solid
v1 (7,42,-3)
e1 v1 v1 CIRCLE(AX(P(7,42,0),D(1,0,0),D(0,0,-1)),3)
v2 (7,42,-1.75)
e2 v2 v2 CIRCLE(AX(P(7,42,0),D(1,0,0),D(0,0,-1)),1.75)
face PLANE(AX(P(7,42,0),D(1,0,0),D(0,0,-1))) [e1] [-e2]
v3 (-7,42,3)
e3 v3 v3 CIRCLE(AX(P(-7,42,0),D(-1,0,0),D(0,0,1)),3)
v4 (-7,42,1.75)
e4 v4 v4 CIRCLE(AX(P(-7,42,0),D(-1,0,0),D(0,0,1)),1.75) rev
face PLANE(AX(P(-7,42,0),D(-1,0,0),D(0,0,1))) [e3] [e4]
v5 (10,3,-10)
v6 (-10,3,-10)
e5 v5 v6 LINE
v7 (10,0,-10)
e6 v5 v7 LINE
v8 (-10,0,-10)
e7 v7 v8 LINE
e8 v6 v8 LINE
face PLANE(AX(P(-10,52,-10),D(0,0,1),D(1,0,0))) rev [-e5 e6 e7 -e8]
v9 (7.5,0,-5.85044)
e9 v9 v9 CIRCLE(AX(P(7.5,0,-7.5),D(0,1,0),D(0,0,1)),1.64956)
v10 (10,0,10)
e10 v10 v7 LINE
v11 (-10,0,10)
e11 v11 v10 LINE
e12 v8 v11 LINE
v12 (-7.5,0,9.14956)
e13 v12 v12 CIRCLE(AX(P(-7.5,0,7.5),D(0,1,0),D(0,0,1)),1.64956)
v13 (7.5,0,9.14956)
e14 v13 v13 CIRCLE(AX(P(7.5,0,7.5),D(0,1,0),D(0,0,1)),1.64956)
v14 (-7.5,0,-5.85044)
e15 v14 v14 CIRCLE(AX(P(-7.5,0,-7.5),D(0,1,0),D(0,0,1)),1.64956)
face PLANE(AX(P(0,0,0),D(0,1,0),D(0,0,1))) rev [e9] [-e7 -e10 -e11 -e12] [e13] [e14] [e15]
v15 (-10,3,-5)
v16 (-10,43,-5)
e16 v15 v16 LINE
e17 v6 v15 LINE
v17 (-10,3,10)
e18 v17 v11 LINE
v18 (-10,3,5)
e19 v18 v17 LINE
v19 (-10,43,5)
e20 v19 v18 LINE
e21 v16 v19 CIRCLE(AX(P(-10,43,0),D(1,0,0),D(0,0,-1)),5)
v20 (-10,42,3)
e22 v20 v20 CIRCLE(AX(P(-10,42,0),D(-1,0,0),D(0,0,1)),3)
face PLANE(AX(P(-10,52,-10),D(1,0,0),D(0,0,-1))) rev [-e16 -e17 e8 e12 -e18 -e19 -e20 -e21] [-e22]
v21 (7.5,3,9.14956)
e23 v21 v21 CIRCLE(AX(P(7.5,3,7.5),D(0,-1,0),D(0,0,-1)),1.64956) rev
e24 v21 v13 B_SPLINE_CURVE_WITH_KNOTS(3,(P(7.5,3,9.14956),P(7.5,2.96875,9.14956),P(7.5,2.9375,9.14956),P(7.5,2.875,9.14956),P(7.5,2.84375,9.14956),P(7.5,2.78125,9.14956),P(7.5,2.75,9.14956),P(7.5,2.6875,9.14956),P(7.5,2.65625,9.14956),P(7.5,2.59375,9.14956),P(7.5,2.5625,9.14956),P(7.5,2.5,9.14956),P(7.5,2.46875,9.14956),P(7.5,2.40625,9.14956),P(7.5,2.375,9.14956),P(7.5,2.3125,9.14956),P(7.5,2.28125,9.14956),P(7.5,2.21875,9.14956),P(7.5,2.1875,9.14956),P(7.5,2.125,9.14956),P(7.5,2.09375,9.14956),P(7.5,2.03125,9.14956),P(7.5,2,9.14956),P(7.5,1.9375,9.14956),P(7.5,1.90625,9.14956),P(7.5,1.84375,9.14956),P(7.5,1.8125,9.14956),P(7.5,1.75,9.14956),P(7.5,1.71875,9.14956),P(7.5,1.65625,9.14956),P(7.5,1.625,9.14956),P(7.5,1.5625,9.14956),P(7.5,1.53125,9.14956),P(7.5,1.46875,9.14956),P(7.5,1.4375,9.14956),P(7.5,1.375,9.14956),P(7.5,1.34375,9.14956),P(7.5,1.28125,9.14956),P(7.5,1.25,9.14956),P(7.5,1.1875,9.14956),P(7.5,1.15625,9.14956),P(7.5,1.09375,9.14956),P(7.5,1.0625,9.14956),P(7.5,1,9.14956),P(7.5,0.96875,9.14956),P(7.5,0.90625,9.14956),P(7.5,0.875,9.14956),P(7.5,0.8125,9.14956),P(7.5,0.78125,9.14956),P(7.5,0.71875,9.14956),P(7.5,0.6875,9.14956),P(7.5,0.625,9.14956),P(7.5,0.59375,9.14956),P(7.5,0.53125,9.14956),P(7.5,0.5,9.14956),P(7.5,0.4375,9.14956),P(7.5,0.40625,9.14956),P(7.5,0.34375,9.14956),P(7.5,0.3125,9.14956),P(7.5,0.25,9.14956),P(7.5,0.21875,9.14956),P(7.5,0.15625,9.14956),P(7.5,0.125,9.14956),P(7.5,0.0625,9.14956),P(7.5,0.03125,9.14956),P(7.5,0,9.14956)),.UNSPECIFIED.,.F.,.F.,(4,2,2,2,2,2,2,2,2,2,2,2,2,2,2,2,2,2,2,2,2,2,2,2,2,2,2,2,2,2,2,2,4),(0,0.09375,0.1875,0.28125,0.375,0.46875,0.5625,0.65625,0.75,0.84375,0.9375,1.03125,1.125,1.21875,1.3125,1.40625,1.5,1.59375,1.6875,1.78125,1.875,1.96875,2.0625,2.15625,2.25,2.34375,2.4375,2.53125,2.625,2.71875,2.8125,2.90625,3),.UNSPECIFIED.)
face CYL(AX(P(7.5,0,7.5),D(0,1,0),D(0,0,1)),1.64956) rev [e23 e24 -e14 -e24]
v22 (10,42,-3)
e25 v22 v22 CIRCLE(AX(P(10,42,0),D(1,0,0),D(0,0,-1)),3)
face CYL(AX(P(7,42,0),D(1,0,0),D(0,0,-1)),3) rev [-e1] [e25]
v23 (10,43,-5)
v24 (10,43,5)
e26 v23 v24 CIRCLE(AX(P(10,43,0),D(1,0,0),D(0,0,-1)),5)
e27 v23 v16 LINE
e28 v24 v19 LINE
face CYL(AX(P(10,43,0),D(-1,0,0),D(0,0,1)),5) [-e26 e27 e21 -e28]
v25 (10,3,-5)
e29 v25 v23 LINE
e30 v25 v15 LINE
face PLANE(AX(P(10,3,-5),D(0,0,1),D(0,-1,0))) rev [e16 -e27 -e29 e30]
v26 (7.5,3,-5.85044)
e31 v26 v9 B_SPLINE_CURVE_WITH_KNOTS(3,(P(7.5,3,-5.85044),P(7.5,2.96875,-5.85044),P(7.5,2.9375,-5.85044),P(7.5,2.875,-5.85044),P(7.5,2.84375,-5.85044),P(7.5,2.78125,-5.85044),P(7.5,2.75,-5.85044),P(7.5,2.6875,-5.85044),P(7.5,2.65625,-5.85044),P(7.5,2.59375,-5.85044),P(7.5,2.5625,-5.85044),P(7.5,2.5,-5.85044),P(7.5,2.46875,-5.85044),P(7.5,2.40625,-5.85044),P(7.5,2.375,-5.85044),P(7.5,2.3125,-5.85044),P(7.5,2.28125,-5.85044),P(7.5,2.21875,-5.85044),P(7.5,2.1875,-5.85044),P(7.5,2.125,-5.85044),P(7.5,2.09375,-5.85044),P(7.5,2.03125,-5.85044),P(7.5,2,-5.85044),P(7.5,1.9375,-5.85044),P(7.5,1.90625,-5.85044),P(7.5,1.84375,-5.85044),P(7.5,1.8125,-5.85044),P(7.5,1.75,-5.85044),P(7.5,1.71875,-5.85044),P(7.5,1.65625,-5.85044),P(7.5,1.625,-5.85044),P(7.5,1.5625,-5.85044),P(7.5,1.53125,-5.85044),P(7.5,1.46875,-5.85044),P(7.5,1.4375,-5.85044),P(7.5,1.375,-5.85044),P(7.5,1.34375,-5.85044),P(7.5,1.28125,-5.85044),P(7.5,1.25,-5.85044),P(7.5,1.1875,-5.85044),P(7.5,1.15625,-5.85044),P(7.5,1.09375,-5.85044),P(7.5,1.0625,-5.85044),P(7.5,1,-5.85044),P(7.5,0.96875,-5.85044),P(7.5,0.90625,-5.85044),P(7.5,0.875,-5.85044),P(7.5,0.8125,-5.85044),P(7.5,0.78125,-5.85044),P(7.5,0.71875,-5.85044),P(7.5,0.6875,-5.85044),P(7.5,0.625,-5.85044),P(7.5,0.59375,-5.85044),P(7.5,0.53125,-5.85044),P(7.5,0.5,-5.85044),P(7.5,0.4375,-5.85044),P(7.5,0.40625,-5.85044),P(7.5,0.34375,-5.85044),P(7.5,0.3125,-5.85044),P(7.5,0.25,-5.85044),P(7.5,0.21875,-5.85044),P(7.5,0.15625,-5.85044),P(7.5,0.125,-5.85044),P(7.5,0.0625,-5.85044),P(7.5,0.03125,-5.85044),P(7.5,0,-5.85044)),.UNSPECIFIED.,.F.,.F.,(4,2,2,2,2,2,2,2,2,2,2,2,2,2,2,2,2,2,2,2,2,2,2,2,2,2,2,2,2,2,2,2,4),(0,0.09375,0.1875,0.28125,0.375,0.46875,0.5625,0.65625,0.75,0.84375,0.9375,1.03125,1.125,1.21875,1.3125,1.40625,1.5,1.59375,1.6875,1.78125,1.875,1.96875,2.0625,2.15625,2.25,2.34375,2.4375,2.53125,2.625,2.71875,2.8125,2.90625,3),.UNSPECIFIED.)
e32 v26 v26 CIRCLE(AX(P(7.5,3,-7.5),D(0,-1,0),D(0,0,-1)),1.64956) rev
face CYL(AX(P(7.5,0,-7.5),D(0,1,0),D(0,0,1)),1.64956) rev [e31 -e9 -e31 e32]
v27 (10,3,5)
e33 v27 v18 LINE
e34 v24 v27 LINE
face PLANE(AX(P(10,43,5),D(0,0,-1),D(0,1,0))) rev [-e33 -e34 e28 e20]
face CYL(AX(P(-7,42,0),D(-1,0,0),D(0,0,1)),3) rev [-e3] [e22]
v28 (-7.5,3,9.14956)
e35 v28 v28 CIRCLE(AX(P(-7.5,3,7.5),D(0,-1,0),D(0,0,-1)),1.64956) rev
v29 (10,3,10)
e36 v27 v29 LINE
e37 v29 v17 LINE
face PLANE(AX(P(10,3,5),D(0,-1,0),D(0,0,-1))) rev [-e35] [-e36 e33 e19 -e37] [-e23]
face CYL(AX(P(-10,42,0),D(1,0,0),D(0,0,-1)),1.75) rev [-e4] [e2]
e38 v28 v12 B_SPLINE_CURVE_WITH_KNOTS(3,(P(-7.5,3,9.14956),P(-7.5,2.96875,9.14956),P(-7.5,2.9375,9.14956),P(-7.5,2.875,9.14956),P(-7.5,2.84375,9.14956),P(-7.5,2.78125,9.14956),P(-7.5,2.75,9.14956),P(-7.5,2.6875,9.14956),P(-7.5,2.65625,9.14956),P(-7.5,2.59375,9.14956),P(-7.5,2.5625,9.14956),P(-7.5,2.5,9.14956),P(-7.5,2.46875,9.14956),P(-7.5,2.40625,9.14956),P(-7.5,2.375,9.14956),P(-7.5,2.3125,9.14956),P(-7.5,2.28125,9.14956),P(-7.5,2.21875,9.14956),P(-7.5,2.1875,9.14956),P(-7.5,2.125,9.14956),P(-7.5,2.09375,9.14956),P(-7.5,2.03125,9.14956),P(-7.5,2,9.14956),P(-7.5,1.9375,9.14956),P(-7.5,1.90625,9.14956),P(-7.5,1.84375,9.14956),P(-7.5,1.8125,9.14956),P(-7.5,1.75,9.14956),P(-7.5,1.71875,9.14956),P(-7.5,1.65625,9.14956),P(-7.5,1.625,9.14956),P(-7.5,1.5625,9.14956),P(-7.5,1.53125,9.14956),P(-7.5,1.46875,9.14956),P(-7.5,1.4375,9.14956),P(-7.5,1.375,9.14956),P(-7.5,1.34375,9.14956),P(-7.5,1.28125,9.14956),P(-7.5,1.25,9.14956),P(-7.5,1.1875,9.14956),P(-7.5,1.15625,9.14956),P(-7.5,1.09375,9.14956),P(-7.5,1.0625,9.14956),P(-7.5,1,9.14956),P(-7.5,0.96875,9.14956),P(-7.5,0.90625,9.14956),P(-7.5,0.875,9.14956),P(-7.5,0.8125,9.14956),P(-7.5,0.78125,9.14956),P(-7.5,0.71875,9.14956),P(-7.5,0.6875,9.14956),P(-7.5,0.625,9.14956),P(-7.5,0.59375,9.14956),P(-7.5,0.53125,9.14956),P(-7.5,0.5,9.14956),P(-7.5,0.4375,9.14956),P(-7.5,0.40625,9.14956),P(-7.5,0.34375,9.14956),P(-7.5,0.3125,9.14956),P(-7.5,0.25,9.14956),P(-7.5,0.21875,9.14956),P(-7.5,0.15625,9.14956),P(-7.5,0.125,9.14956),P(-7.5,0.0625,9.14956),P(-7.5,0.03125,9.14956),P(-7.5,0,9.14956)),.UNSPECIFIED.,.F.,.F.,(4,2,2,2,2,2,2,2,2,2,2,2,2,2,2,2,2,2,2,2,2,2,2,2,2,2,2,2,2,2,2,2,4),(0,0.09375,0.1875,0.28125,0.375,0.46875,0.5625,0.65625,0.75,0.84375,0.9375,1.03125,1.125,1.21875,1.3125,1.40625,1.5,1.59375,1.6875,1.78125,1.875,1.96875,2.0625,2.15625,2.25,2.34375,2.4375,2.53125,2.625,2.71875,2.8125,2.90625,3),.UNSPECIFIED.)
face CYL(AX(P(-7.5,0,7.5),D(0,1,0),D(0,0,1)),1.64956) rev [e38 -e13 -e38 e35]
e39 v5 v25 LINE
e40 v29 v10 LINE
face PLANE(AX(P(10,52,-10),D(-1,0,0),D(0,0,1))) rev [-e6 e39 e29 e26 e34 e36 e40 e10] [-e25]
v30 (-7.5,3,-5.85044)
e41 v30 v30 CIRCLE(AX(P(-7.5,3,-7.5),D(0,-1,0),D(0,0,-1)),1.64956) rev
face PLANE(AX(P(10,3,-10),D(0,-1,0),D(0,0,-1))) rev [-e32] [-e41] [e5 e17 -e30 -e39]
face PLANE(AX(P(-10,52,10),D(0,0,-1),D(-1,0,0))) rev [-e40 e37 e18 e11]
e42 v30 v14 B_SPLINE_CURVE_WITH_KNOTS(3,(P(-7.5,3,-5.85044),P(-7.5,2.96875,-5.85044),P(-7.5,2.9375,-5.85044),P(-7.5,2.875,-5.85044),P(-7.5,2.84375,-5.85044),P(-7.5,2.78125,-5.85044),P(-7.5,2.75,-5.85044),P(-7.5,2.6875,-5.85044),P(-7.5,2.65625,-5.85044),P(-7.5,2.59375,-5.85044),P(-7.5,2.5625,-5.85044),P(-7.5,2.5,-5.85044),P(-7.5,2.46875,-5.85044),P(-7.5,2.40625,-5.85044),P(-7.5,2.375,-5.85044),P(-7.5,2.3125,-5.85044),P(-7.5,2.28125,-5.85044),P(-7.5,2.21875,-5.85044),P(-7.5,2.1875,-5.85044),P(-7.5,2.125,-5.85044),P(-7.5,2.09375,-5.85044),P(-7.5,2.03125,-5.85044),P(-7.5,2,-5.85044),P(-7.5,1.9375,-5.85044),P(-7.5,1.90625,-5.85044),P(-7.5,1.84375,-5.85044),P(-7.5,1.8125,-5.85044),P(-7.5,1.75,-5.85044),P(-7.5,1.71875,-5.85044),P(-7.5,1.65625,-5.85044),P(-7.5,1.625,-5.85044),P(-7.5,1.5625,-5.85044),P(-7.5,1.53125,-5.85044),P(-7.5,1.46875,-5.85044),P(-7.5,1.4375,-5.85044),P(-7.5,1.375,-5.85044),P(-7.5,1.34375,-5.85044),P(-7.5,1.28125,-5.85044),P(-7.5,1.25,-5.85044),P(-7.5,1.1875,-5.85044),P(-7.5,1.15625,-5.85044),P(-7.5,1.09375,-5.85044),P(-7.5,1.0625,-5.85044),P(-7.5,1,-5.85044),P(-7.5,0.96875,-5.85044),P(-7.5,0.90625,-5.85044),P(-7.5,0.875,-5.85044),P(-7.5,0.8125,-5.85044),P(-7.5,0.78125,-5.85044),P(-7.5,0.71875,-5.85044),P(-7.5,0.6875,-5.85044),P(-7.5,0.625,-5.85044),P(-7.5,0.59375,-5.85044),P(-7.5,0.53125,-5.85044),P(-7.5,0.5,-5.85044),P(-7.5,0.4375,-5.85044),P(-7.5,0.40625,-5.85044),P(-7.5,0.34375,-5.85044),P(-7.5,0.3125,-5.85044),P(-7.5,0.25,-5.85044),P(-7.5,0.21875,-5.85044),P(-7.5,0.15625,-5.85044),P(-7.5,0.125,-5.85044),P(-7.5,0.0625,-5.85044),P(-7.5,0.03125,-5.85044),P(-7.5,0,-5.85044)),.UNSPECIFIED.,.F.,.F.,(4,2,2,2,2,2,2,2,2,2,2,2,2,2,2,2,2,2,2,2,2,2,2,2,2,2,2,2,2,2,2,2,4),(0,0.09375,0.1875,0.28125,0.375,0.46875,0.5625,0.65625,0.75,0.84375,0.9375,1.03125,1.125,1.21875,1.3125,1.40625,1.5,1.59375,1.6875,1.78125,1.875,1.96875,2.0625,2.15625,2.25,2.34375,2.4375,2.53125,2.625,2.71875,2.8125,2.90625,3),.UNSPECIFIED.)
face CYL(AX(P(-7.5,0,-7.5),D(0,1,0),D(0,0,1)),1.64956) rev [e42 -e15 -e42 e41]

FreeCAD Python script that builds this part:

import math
import FreeCAD as App
import Part
import Sketcher
Q = App.Units.Quantity

doc = App.newDocument("Part")
body = doc.addObject("PartDesign::Body", "Body")

sketch1 = doc.addObject("Sketcher::SketchObject", "Sketch")
body.addObject(sketch1)
sketch1.AttachmentSupport = (doc.XZ_Plane, [""])
sketch1.MapMode = "FlatFace"
sketch1.addGeometry([
    Part.LineSegment(App.Vector(-10, -10, 0), App.Vector(-10, 10, 0)),
    Part.LineSegment(App.Vector(-10, 10, 0), App.Vector(10, 10, 0)),
    Part.LineSegment(App.Vector(10, 10, 0), App.Vector(10, -10, 0)),
    Part.LineSegment(App.Vector(10, -10, 0), App.Vector(-10, -10, 0)),
], False)
sketch1.addConstraint([
    Sketcher.Constraint("Coincident", 0, 2, 1, 1),
    Sketcher.Constraint("Coincident", 1, 2, 2, 1),
    Sketcher.Constraint("Coincident", 2, 2, 3, 1),
    Sketcher.Constraint("Coincident", 3, 2, 0, 1),
    Sketcher.Constraint("Vertical", 0),
    Sketcher.Constraint("Horizontal", 1),
    Sketcher.Constraint("Vertical", 2),
    Sketcher.Constraint("Horizontal", 3),
    Sketcher.Constraint("Symmetric", 0, 2, 2, 2, -1, 1),
    Sketcher.Constraint("Equal", 3, 0),
    Sketcher.Constraint("DistanceX", 1, 1, 1, 2, Q("20 mm")),
])
pad1 = doc.addObject("PartDesign::Pad", "Pad")
body.addObject(pad1)
pad1.Profile = sketch1
pad1.Length = 52
pad1.Reversed = True

sketch2 = doc.addObject("Sketcher::SketchObject", "Sketch001")
body.addObject(sketch2)
sketch2.AttachmentSupport = (doc.YZ_Plane, [""])
sketch2.MapMode = "FlatFace"
sketch2.AttachmentOffset = App.Placement(App.Vector(0, 0, 10), App.Rotation())
sketch2.addGeometry(Part.Circle(App.Vector(42, 0, 0), App.Vector(0, 0, 1), 3), False)
sketch2.addConstraint([
    Sketcher.Constraint("PointOnObject", 0, 3, -1),
    Sketcher.Constraint("Diameter", 0, Q("6 mm")),
    Sketcher.Constraint("DistanceX", -1, 1, 0, 3, Q("42 mm")),
])
pocket1 = doc.addObject("PartDesign::Pocket", "Pocket")
body.addObject(pocket1)
pocket1.Profile = sketch2
pocket1.Length = 3

sketch3 = doc.addObject("Sketcher::SketchObject", "Sketch002")
body.addObject(sketch3)
sketch3.AttachmentSupport = (doc.YZ_Plane, [""])
sketch3.MapMode = "FlatFace"
sketch3.AttachmentOffset = App.Placement(App.Vector(0, 0, 7), App.Rotation())
sketch3.addGeometry(Part.Circle(App.Vector(42, 0, 0), App.Vector(0, 0, 1), 1.75), False)
sketch3.addConstraint([
    Sketcher.Constraint("PointOnObject", 0, 3, -1),
    Sketcher.Constraint("Diameter", 0, Q("3.5 mm")),
    Sketcher.Constraint("DistanceX", -1, 1, 0, 3, Q("42 mm")),
])
pocket2 = doc.addObject("PartDesign::Pocket", "Pocket001")
body.addObject(pocket2)
pocket2.Profile = sketch3
pocket2.Type = "ThroughAll"

sketch4 = doc.addObject("Sketcher::SketchObject", "Sketch003")
body.addObject(sketch4)
sketch4.AttachmentSupport = (doc.YZ_Plane, [""])
sketch4.MapMode = "FlatFace"
sketch4.AttachmentOffset = App.Placement(App.Vector(0, 0, -7), App.Rotation())
sketch4.addGeometry(Part.Circle(App.Vector(42, 0, 0), App.Vector(0, 0, 1), 3), False)
sketch4.addConstraint([
    Sketcher.Constraint("PointOnObject", 0, 3, -1),
    Sketcher.Constraint("Diameter", 0, Q("6 mm")),
    Sketcher.Constraint("DistanceX", -1, 1, 0, 3, Q("42 mm")),
])
pocket3 = doc.addObject("PartDesign::Pocket", "Pocket002")
body.addObject(pocket3)
pocket3.Profile = sketch4
pocket3.Length = 3

sketch5 = doc.addObject("Sketcher::SketchObject", "Sketch004")
body.addObject(sketch5)
sketch5.AttachmentSupport = (doc.XZ_Plane, [""])
sketch5.MapMode = "FlatFace"
sketch5.AttachmentOffset = App.Placement(App.Vector(0, 0, -52), App.Rotation())
sketch5.addGeometry([
    Part.Circle(App.Vector(-7.5, -7.5, 0), App.Vector(0, 0, 1), 1.64956),
    Part.Circle(App.Vector(7.5, -7.5, 0), App.Vector(0, 0, 1), 1.64956),
    Part.Circle(App.Vector(7.5, 7.5, 0), App.Vector(0, 0, 1), 1.64956),
    Part.Circle(App.Vector(-7.5, 7.5, 0), App.Vector(0, 0, 1), 1.64956),
], False)
sketch5.addConstraint([
    Sketcher.Constraint("Equal", 0, 1),
    Sketcher.Constraint("Equal", 1, 2),
    Sketcher.Constraint("Equal", 2, 3),
    Sketcher.Constraint("Symmetric", 0, 3, 2, 3, -1, 1),
    Sketcher.Constraint("Symmetric", 1, 3, 3, 3, -1, 1),
    Sketcher.Constraint("Symmetric", 0, 3, 1, 3, -2),
    Sketcher.Constraint("DistanceX", 0, 3, 1, 3, Q("15 mm")),
    Sketcher.Constraint("DistanceY", 1, 3, 2, 3, Q("15 mm")),
    Sketcher.Constraint("Diameter", 0, Q("3.299119 mm")),
])
pocket4 = doc.addObject("PartDesign::Pocket", "Pocket003")
body.addObject(pocket4)
pocket4.Profile = sketch5
pocket4.Type = "ThroughAll"
pocket4.Reversed = True

sketch6 = doc.addObject("Sketcher::SketchObject", "Sketch005")
body.addObject(sketch6)
sketch6.AttachmentSupport = (doc.YZ_Plane, [""])
sketch6.MapMode = "FlatFace"
sketch6.AttachmentOffset = App.Placement(App.Vector(0, 0, -10), App.Rotation())
sketch6.addGeometry([
    Part.LineSegment(App.Vector(3, -10, 0), App.Vector(3, -5, 0)),
    Part.LineSegment(App.Vector(3, -5, 0), App.Vector(43, -5, 0)),
    Part.ArcOfCircle(Part.Circle(App.Vector(43, 0, 0), App.Vector(0, 0, 1), 5), math.radians(-90), math.radians(90)),
    Part.LineSegment(App.Vector(43, 5, 0), App.Vector(3, 5, 0)),
    Part.LineSegment(App.Vector(3, 5, 0), App.Vector(3, 10, 0)),
    Part.LineSegment(App.Vector(3, 10, 0), App.Vector(52, 10, 0)),
    Part.LineSegment(App.Vector(52, 10, 0), App.Vector(52, -10, 0)),
    Part.LineSegment(App.Vector(52, -10, 0), App.Vector(3, -10, 0)),
], False)
sketch6.addConstraint([
    Sketcher.Constraint("Coincident", 0, 2, 1, 1),
    Sketcher.Constraint("Tangent", 1, 2, 2, 1),
    Sketcher.Constraint("Tangent", 2, 2, 3, 1),
    Sketcher.Constraint("Coincident", 3, 2, 4, 1),
    Sketcher.Constraint("Coincident", 4, 2, 5, 1),
    Sketcher.Constraint("Coincident", 5, 2, 6, 1),
    Sketcher.Constraint("Coincident", 6, 2, 7, 1),
    Sketcher.Constraint("Coincident", 7, 2, 0, 1),
    Sketcher.Constraint("Vertical", 0),
    Sketcher.Constraint("Horizontal", 1),
    Sketcher.Constraint("Horizontal", 3),
    Sketcher.Constraint("Vertical", 4),
    Sketcher.Constraint("Horizontal", 5),
    Sketcher.Constraint("Vertical", 6),
    Sketcher.Constraint("Horizontal", 7),
    Sketcher.Constraint("Symmetric", 0, 2, 3, 2, -1),
    Sketcher.Constraint("Equal", 0, 4),
    Sketcher.Constraint("Radius", 2, Q("5 mm")),
    Sketcher.Constraint("DistanceX", 1, 1, 1, 2, Q("40 mm")),
    Sketcher.Constraint("DistanceX", 5, 1, 5, 2, Q("49 mm")),
    Sketcher.Constraint("DistanceY", 0, 1, 0, 2, Q("5 mm")),
    Sketcher.Constraint("DistanceX", -1, 1, 2, 3, Q("43 mm")),
])
pocket5 = doc.addObject("PartDesign::Pocket", "Pocket004")
body.addObject(pocket5)
pocket5.Profile = sketch6
pocket5.Type = "ThroughAll"
pocket5.Reversed = True

doc.recompute()
